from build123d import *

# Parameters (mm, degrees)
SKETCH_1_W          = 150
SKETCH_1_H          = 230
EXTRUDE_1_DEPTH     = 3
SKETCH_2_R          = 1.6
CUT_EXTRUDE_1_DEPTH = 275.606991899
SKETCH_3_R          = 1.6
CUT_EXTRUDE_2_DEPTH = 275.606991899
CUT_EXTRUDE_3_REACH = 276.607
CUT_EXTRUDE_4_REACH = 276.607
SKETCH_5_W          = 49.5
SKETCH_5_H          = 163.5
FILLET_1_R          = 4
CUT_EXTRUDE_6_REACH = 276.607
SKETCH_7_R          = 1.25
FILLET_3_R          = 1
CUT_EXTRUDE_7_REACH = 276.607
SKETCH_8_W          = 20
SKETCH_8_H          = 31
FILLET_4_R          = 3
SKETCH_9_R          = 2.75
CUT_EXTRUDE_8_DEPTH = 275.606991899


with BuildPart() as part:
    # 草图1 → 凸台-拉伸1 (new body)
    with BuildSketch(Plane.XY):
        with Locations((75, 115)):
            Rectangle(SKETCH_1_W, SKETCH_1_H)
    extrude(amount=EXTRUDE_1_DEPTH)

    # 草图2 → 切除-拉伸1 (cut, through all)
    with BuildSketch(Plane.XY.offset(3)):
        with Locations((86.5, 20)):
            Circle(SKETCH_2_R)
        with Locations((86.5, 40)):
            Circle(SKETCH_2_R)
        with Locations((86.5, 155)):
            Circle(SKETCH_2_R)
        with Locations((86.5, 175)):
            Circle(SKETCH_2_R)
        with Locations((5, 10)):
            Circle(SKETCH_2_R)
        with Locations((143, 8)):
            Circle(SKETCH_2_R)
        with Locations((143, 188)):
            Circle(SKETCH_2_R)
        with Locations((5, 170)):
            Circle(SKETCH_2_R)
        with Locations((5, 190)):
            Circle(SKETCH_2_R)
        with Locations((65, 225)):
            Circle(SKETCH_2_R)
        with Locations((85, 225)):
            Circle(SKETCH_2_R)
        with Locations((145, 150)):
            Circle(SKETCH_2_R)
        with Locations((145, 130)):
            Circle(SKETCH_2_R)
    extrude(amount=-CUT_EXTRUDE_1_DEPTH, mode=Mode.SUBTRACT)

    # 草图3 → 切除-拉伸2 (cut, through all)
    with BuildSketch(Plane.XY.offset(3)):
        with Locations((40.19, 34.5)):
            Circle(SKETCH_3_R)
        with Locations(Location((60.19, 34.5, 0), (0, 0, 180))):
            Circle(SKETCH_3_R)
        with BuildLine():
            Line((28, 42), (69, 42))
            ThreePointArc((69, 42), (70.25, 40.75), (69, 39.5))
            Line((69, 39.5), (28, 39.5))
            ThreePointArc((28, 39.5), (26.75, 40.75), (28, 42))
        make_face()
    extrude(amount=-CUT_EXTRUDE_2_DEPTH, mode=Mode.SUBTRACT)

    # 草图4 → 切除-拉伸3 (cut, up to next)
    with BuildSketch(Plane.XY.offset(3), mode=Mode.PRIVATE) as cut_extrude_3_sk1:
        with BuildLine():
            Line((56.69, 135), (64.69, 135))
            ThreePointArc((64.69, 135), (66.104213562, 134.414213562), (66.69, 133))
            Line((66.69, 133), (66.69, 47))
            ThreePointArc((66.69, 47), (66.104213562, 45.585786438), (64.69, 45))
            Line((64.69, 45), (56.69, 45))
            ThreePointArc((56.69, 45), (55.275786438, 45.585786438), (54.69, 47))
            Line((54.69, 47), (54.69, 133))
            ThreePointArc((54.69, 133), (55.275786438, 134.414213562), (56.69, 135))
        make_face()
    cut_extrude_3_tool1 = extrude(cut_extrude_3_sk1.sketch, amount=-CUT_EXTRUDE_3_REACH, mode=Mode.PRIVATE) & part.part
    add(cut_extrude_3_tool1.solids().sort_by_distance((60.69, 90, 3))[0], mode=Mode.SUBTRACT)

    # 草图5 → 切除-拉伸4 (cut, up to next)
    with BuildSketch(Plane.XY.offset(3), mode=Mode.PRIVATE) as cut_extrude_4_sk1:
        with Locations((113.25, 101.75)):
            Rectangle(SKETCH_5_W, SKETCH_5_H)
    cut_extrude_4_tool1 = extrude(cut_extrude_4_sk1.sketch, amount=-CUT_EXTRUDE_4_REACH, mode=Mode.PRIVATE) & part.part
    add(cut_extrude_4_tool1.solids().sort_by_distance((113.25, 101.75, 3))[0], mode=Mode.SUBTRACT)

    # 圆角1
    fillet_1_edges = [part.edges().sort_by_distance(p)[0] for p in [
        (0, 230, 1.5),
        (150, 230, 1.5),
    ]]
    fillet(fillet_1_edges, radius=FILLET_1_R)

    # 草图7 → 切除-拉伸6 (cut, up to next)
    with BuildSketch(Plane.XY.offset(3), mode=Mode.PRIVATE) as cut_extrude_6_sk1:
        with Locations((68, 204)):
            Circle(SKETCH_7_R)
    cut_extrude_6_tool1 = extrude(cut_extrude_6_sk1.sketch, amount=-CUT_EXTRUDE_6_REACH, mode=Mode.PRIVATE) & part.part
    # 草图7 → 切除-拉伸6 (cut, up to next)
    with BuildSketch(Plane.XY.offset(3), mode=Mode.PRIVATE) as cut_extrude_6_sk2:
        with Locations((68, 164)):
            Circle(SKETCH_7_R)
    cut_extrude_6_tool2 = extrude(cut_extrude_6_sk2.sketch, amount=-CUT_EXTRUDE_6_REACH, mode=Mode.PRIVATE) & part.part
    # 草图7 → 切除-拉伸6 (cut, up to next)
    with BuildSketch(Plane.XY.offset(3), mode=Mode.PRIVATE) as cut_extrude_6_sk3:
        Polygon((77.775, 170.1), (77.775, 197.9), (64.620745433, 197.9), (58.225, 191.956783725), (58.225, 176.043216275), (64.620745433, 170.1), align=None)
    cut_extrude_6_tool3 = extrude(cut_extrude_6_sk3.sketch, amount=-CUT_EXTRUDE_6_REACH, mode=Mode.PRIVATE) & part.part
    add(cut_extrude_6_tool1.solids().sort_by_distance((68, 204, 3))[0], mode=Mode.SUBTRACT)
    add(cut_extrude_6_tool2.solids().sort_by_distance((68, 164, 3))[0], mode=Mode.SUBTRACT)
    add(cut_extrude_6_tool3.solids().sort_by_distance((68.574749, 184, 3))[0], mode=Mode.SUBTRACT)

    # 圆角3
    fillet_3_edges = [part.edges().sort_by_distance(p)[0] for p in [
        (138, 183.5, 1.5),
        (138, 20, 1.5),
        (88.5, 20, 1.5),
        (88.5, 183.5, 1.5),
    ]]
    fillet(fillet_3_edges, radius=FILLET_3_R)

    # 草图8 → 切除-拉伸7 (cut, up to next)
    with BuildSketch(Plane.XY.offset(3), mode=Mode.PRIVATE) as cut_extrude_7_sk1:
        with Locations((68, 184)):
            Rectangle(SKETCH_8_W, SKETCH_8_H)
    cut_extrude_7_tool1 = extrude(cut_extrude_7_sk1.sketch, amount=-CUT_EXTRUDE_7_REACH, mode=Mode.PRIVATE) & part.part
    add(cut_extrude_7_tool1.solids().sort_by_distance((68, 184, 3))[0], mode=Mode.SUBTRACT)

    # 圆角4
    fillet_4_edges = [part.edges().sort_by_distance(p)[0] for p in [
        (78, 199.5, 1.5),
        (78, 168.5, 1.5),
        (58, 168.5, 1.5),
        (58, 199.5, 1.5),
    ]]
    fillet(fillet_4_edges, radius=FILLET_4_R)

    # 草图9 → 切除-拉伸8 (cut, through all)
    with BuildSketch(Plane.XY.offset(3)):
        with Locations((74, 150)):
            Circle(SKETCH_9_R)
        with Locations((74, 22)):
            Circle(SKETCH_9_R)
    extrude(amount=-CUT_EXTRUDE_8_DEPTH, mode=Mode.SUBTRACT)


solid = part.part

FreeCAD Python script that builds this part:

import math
import FreeCAD as App
import Part
import Sketcher
from FreeCAD import Vector


def edges_at(feature, points):
    """Names of the edges that pass closest to the given points."""
    edges = feature.Shape.Edges
    near = lambda p: min(range(len(edges)), key=lambda i: edges[i].distToShape(Part.Vertex(*p))[0])
    return sorted({f"Edge{near(p) + 1}" for p in points})


def add_polygon(sketch, points):
    """Adds a closed chain of lines whose ends are joined by coincident constraints."""
    first, n = sketch.GeometryCount, len(points)
    for a, b in zip(points, points[1:] + points[:1]):
        sketch.addGeometry(Part.LineSegment(App.Vector(*a, 0), App.Vector(*b, 0)), False)
    for i in range(n):
        sketch.addConstraint(Sketcher.Constraint("Coincident", first + i, 2, first + (i + 1) % n, 1))

doc = App.newDocument("Part")
body = doc.addObject("PartDesign::Body", "Body")

sketch1 = doc.addObject("Sketcher::SketchObject", "Sketch")
body.addObject(sketch1)
sketch1.AttachmentSupport = (doc.XY_Plane, [""])
sketch1.MapMode = "FlatFace"
add_polygon(sketch1, [(0, 230), (0, 0), (150, 0), (150, 230)])
sketch1.addConstraint(Sketcher.Constraint("Vertical", 0))
sketch1.addConstraint(Sketcher.Constraint("Horizontal", 1))
sketch1.addConstraint(Sketcher.Constraint("Vertical", 2))
sketch1.addConstraint(Sketcher.Constraint("Horizontal", 3))
sketch1.addConstraint(Sketcher.Constraint("Coincident", 0, 2, -1, 1))
sketch1.addConstraint(Sketcher.Constraint("DistanceX", 1, 1, 1, 2, 150.0))
sketch1.addConstraint(Sketcher.Constraint("DistanceY", 0, 2, 0, 1, 230.0))
pad1 = doc.addObject("PartDesign::Pad", "Pad")
body.addObject(pad1)
pad1.Profile = sketch1
pad1.Length = 3

sketch2 = doc.addObject("Sketcher::SketchObject", "Sketch001")
body.addObject(sketch2)
sketch2.AttachmentSupport = (doc.XY_Plane, [""])
sketch2.MapMode = "FlatFace"
sketch2.AttachmentOffset = App.Placement(Vector(0, 0, 3), App.Rotation())
sketch2.addGeometry(Part.Circle(Vector(86.5, 20, 0), Vector(0, 0, 1), 1.6), False)
sketch2.addGeometry(Part.Circle(Vector(86.5, 40, 0), Vector(0, 0, 1), 1.6), False)
sketch2.addGeometry(Part.Circle(Vector(86.5, 155, 0), Vector(0, 0, 1), 1.6), False)
sketch2.addGeometry(Part.Circle(Vector(86.5, 175, 0), Vector(0, 0, 1), 1.6), False)
sketch2.addGeometry(Part.Circle(Vector(5, 10, 0), Vector(0, 0, 1), 1.6), False)
sketch2.addGeometry(Part.Circle(Vector(143, 8, 0), Vector(0, 0, 1), 1.6), False)
sketch2.addGeometry(Part.Circle(Vector(143, 188, 0), Vector(0, 0, 1), 1.6), False)
sketch2.addGeometry(Part.Circle(Vector(5, 170, 0), Vector(0, 0, 1), 1.6), False)
sketch2.addGeometry(Part.Circle(Vector(5, 190, 0), Vector(0, 0, 1), 1.6), False)
sketch2.addGeometry(Part.Circle(Vector(65, 225, 0), Vector(0, 0, 1), 1.6), False)
sketch2.addGeometry(Part.Circle(Vector(85, 225, 0), Vector(0, 0, 1), 1.6), False)
sketch2.addGeometry(Part.Circle(Vector(145, 150, 0), Vector(0, 0, 1), 1.6), False)
sketch2.addGeometry(Part.Circle(Vector(145, 130, 0), Vector(0, 0, 1), 1.6), False)
sketch2.addConstraint(Sketcher.Constraint("Equal", 0, 1))
sketch2.addConstraint(Sketcher.Constraint("Equal", 1, 2))
sketch2.addConstraint(Sketcher.Constraint("Equal", 2, 3))
sketch2.addConstraint(Sketcher.Constraint("Equal", 3, 4))
sketch2.addConstraint(Sketcher.Constraint("Equal", 4, 5))
sketch2.addConstraint(Sketcher.Constraint("Equal", 5, 6))
sketch2.addConstraint(Sketcher.Constraint("Equal", 6, 7))
sketch2.addConstraint(Sketcher.Constraint("Equal", 7, 8))
sketch2.addConstraint(Sketcher.Constraint("Equal", 8, 9))
sketch2.addConstraint(Sketcher.Constraint("Equal", 9, 10))
sketch2.addConstraint(Sketcher.Constraint("Equal", 10, 11))
sketch2.addConstraint(Sketcher.Constraint("Equal", 11, 12))
sketch2.addConstraint(Sketcher.Constraint("Horizontal", 9, 3, 10, 3))
sketch2.addConstraint(Sketcher.Constraint("Vertical", 0, 3, 1, 3))
sketch2.addConstraint(Sketcher.Constraint("Vertical", 1, 3, 2, 3))
sketch2.addConstraint(Sketcher.Constraint("Vertical", 2, 3, 3, 3))
sketch2.addConstraint(Sketcher.Constraint("Vertical", 5, 3, 6, 3))
sketch2.addConstraint(Sketcher.Constraint("Vertical", 4, 3, 7, 3))
sketch2.addConstraint(Sketcher.Constraint("Vertical", 7, 3, 8, 3))
sketch2.addConstraint(Sketcher.Constraint("Vertical", 11, 3, 12, 3))
sketch2.addConstraint(Sketcher.Constraint("Diameter", 0, 3.2))
sketch2.addConstraint(Sketcher.Constraint("DistanceY", -1, 1, 0, 3, 20.0))
sketch2.addConstraint(Sketcher.Constraint("DistanceY", -1, 1, 1, 3, 40.0))
sketch2.addConstraint(Sketcher.Constraint("DistanceY", -1, 1, 2, 3, 155.0))
sketch2.addConstraint(Sketcher.Constraint("DistanceY", -1, 1, 3, 3, 175.0))
sketch2.addConstraint(Sketcher.Constraint("DistanceX", -1, 1, 4, 3, 5.0))
sketch2.addConstraint(Sketcher.Constraint("DistanceY", -1, 1, 4, 3, 10.0))
sketch2.addConstraint(Sketcher.Constraint("DistanceX", -1, 1, 5, 3, 143.0))
sketch2.addConstraint(Sketcher.Constraint("DistanceY", -1, 1, 5, 3, 8.0))
sketch2.addConstraint(Sketcher.Constraint("DistanceY", -1, 1, 6, 3, 188.0))
sketch2.addConstraint(Sketcher.Constraint("DistanceY", -1, 1, 7, 3, 170.0))
sketch2.addConstraint(Sketcher.Constraint("DistanceY", -1, 1, 8, 3, 190.0))
sketch2.addConstraint(Sketcher.Constraint("DistanceX", -1, 1, 9, 3, 65.0))
sketch2.addConstraint(Sketcher.Constraint("DistanceY", -1, 1, 9, 3, 225.0))
sketch2.addConstraint(Sketcher.Constraint("DistanceX", -1, 1, 10, 3, 85.0))
sketch2.addConstraint(Sketcher.Constraint("DistanceX", -1, 1, 11, 3, 145.0))
sketch2.addConstraint(Sketcher.Constraint("DistanceY", -1, 1, 11, 3, 150.0))
sketch2.addConstraint(Sketcher.Constraint("DistanceY", -1, 1, 12, 3, 130.0))
sketch2.addConstraint(Sketcher.Constraint("DistanceX", -1, 1, 0, 3, 86.5))
pocket1 = doc.addObject("PartDesign::Pocket", "Pocket")
body.addObject(pocket1)
pocket1.Profile = sketch2
pocket1.Type = "ThroughAll"

sketch3 = doc.addObject("Sketcher::SketchObject", "Sketch002")
body.addObject(sketch3)
sketch3.AttachmentSupport = (doc.XY_Plane, [""])
sketch3.MapMode = "FlatFace"
sketch3.AttachmentOffset = App.Placement(Vector(0, 0, 3), App.Rotation())
sketch3.addGeometry(Part.Circle(Vector(40.19, 34.5, 0), Vector(0, 0, 1), 1.6), False)
sketch3.addGeometry(Part.Circle(Vector(60.19, 34.5, 0), Vector(0, 0, 1), 1.6), False)
sketch3.addGeometry(Part.LineSegment(Vector(69, 42, 0), Vector(28, 42, 0)), False)
sketch3.addGeometry(Part.ArcOfCircle(Part.Circle(Vector(28, 40.75, 0), Vector(0, 0, 1), 1.25), math.radians(90), math.radians(270)), False)
sketch3.addGeometry(Part.LineSegment(Vector(28, 39.5, 0), Vector(69, 39.5, 0)), False)
sketch3.addGeometry(Part.ArcOfCircle(Part.Circle(Vector(69, 40.75, 0), Vector(0, 0, 1), 1.25), math.radians(-90), math.radians(90)), False)
sketch3.addConstraint(Sketcher.Constraint("Tangent", 2, 2, 3, 1))
sketch3.addConstraint(Sketcher.Constraint("Tangent", 3, 2, 4, 1))
sketch3.addConstraint(Sketcher.Constraint("Tangent", 4, 2, 5, 1))
sketch3.addConstraint(Sketcher.Constraint("Tangent", 5, 2, 2, 1))
sketch3.addConstraint(Sketcher.Constraint("Horizontal", 2))
sketch3.addConstraint(Sketcher.Constraint("Horizontal", 4))
sketch3.addConstraint(Sketcher.Constraint("Equal", 0, 1))
sketch3.addConstraint(Sketcher.Constraint("Horizontal", 0, 3, 1, 3))
sketch3.addConstraint(Sketcher.Constraint("Diameter", 0, 3.2))
sketch3.addConstraint(Sketcher.Constraint("DistanceX", 2, 2, 2, 1, 41.0))
sketch3.addConstraint(Sketcher.Constraint("Radius", 3, 1.25))
sketch3.addConstraint(Sketcher.Constraint("DistanceX", -1, 1, 3, 3, 28.0))
sketch3.addConstraint(Sketcher.Constraint("DistanceY", -1, 1, 2, 2, 42.0))
sketch3.addConstraint(Sketcher.Constraint("DistanceX", 0, 3, 1, 3, 20.0))
sketch3.addConstraint(Sketcher.Constraint("DistanceY", 0, 3, 3, 2, 5.0))
sketch3.addConstraint(Sketcher.Constraint("DistanceX", -1, 1, 0, 3, 40.19))
pocket2 = doc.addObject("PartDesign::Pocket", "Pocket001")
body.addObject(pocket2)
pocket2.Profile = sketch3
pocket2.Type = "ThroughAll"

sketch4 = doc.addObject("Sketcher::SketchObject", "Sketch003")
body.addObject(sketch4)
sketch4.AttachmentSupport = (doc.XY_Plane, [""])
sketch4.MapMode = "FlatFace"
sketch4.AttachmentOffset = App.Placement(Vector(0, 0, 3), App.Rotation())
sketch4.addGeometry(Part.LineSegment(Vector(64.69, 135, 0), Vector(56.69, 135, 0)), False)
sketch4.addGeometry(Part.ArcOfCircle(Part.Circle(Vector(56.69, 133, 0), Vector(0, 0, 1), 2), math.radians(90), math.radians(180)), False)
sketch4.addGeometry(Part.LineSegment(Vector(54.69, 133, 0), Vector(54.69, 47, 0)), False)
sketch4.addGeometry(Part.ArcOfCircle(Part.Circle(Vector(56.69, 47, 0), Vector(0, 0, 1), 2), math.radians(-180), math.radians(-90)), False)
sketch4.addGeometry(Part.LineSegment(Vector(56.69, 45, 0), Vector(64.69, 45, 0)), False)
sketch4.addGeometry(Part.ArcOfCircle(Part.Circle(Vector(64.69, 47, 0), Vector(0, 0, 1), 2), math.radians(-90), math.radians(0)), False)
sketch4.addGeometry(Part.LineSegment(Vector(66.69, 47, 0), Vector(66.69, 133, 0)), False)
sketch4.addGeometry(Part.ArcOfCircle(Part.Circle(Vector(64.69, 133, 0), Vector(0, 0, 1), 2), math.radians(0), math.radians(90)), False)
sketch4.addConstraint(Sketcher.Constraint("Tangent", 0, 2, 1, 1))
sketch4.addConstraint(Sketcher.Constraint("Tangent", 1, 2, 2, 1))
sketch4.addConstraint(Sketcher.Constraint("Tangent", 2, 2, 3, 1))
sketch4.addConstraint(Sketcher.Constraint("Tangent", 3, 2, 4, 1))
sketch4.addConstraint(Sketcher.Constraint("Tangent", 4, 2, 5, 1))
sketch4.addConstraint(Sketcher.Constraint("Tangent", 5, 2, 6, 1))
sketch4.addConstraint(Sketcher.Constraint("Tangent", 6, 2, 7, 1))
sketch4.addConstraint(Sketcher.Constraint("Tangent", 7, 2, 0, 1))
sketch4.addConstraint(Sketcher.Constraint("Horizontal", 0))
sketch4.addConstraint(Sketcher.Constraint("Vertical", 2))
sketch4.addConstraint(Sketcher.Constraint("Horizontal", 4))
sketch4.addConstraint(Sketcher.Constraint("Vertical", 6))
sketch4.addConstraint(Sketcher.Constraint("Equal", 1, 3))
sketch4.addConstraint(Sketcher.Constraint("Equal", 3, 5))
sketch4.addConstraint(Sketcher.Constraint("Equal", 5, 7))
sketch4.addConstraint(Sketcher.Constraint("Radius", 1, 2.0))
sketch4.addConstraint(Sketcher.Constraint("DistanceX", 0, 2, 0, 1, 8.0))
sketch4.addConstraint(Sketcher.Constraint("DistanceY", 2, 2, 2, 1, 86.0))
sketch4.addConstraint(Sketcher.Constraint("DistanceY", -1, 1, 1, 3, 133.0))
sketch4.addConstraint(Sketcher.Constraint("DistanceX", -1, 1, 1, 3, 56.69))
pocket3 = doc.addObject("PartDesign::Pocket", "Pocket002")
body.addObject(pocket3)
pocket3.Profile = sketch4
pocket3.Type = "UpToFirst"

sketch5 = doc.addObject("Sketcher::SketchObject", "Sketch004")
body.addObject(sketch5)
sketch5.AttachmentSupport = (doc.XY_Plane, [""])
sketch5.MapMode = "FlatFace"
sketch5.AttachmentOffset = App.Placement(Vector(0, 0, 3), App.Rotation())
add_polygon(sketch5, [(88.5, 183.5), (88.5, 20), (138, 20), (138, 183.5)])
sketch5.addConstraint(Sketcher.Constraint("Vertical", 0))
sketch5.addConstraint(Sketcher.Constraint("Horizontal", 1))
sketch5.addConstraint(Sketcher.Constraint("Vertical", 2))
sketch5.addConstraint(Sketcher.Constraint("Horizontal", 3))
sketch5.addConstraint(Sketcher.Constraint("DistanceX", 1, 1, 1, 2, 49.5))
sketch5.addConstraint(Sketcher.Constraint("DistanceY", 0, 2, 0, 1, 163.5))
sketch5.addConstraint(Sketcher.Constraint("DistanceY", -1, 1, 0, 2, 20.0))
sketch5.addConstraint(Sketcher.Constraint("DistanceX", -1, 1, 1, 2, 138.0))
pocket4 = doc.addObject("PartDesign::Pocket", "Pocket003")
body.addObject(pocket4)
pocket4.Profile = sketch5
pocket4.Type = "UpToFirst"
doc.recompute()

fillet = doc.addObject("PartDesign::Fillet", "Fillet")
body.addObject(fillet)
fillet.Base = (pocket4, edges_at(pocket4, [(0, 230, 1.5), (150, 230, 1.5)]))
fillet.Radius = 4

sketch6 = doc.addObject("Sketcher::SketchObject", "Sketch005")
body.addObject(sketch6)
sketch6.AttachmentSupport = (doc.XY_Plane, [""])
sketch6.MapMode = "FlatFace"
sketch6.AttachmentOffset = App.Placement(Vector(0, 0, 3), App.Rotation())
sketch6.addGeometry(Part.Circle(Vector(68, 204, 0), Vector(0, 0, 1), 1.25), False)
sketch6.addConstraint(Sketcher.Constraint("Diameter", 0, 2.5))
sketch6.addConstraint(Sketcher.Constraint("DistanceX", -1, 1, 0, 3, 68.0))
sketch6.addConstraint(Sketcher.Constraint("DistanceY", -1, 1, 0, 3, 204.0))
pocket5 = doc.addObject("PartDesign::Pocket", "Pocket004")
body.addObject(pocket5)
pocket5.Profile = sketch6
pocket5.Type = "UpToFirst"

sketch7 = doc.addObject("Sketcher::SketchObject", "Sketch006")
body.addObject(sketch7)
sketch7.AttachmentSupport = (doc.XY_Plane, [""])
sketch7.MapMode = "FlatFace"
sketch7.AttachmentOffset = App.Placement(Vector(0, 0, 3), App.Rotation())
sketch7.addGeometry(Part.Circle(Vector(68, 164, 0), Vector(0, 0, 1), 1.25), False)
sketch7.addConstraint(Sketcher.Constraint("Diameter", 0, 2.5))
sketch7.addConstraint(Sketcher.Constraint("DistanceX", -1, 1, 0, 3, 68.0))
sketch7.addConstraint(Sketcher.Constraint("DistanceY", -1, 1, 0, 3, 164.0))
pocket6 = doc.addObject("PartDesign::Pocket", "Pocket005")
body.addObject(pocket6)
pocket6.Profile = sketch7
pocket6.Type = "UpToFirst"

sketch8 = doc.addObject("Sketcher::SketchObject", "Sketch007")
body.addObject(sketch8)
sketch8.AttachmentSupport = (doc.XY_Plane, [""])
sketch8.MapMode = "FlatFace"
sketch8.AttachmentOffset = App.Placement(Vector(0, 0, 3), App.Rotation())
add_polygon(sketch8, [(77.775, 170.1), (77.775, 197.9), (64.620745, 197.9), (58.225, 191.956784), (58.225, 176.043216), (64.620745, 170.1)])
sketch8.addConstraint(Sketcher.Constraint("Vertical", 0))
sketch8.addConstraint(Sketcher.Constraint("Horizontal", 1))
sketch8.addConstraint(Sketcher.Constraint("Vertical", 3))
sketch8.addConstraint(Sketcher.Constraint("Horizontal", 5))
sketch8.addConstraint(Sketcher.Constraint("Vertical", 1, 2, 4, 2))
sketch8.addConstraint(Sketcher.Constraint("Equal", 2, 4))
sketch8.addConstraint(Sketcher.Constraint("DistanceY", 0, 1, 0, 2, 27.8))
sketch8.addConstraint(Sketcher.Constraint("DistanceY", -1, 1, 0, 2, 197.9))
sketch8.addConstraint(Sketcher.Constraint("DistanceX", 2, 2, 0, 2, 19.55))
sketch8.addConstraint(Sketcher.Constraint("DistanceX", -1, 1, 0, 2, 77.775))
sketch8.addConstraint(Sketcher.Constraint("Distance", 2, 8.730829))
sketch8.addConstraint(Sketcher.Constraint("DistanceX", 1, 2, 1, 1, 13.154255))
pocket7 = doc.addObject("PartDesign::Pocket", "Pocket006")
body.addObject(pocket7)
pocket7.Profile = sketch8
pocket7.Type = "UpToFirst"
doc.recompute()

fillet2 = doc.addObject("PartDesign::Fillet", "Fillet001")
body.addObject(fillet2)
fillet2.Base = (pocket7, edges_at(pocket7, [
    (138, 183.5, 1.5),
    (138, 20, 1.5),
    (88.5, 20, 1.5),
    (88.5, 183.5, 1.5),
]))
fillet2.Radius = 1

sketch9 = doc.addObject("Sketcher::SketchObject", "Sketch008")
body.addObject(sketch9)
sketch9.AttachmentSupport = (doc.XY_Plane, [""])
sketch9.MapMode = "FlatFace"
sketch9.AttachmentOffset = App.Placement(Vector(0, 0, 3), App.Rotation())
add_polygon(sketch9, [(58, 199.5), (58, 168.5), (78, 168.5), (78, 199.5)])
sketch9.addConstraint(Sketcher.Constraint("Vertical", 0))
sketch9.addConstraint(Sketcher.Constraint("Horizontal", 1))
sketch9.addConstraint(Sketcher.Constraint("Vertical", 2))
sketch9.addConstraint(Sketcher.Constraint("Horizontal", 3))
sketch9.addConstraint(Sketcher.Constraint("DistanceX", 1, 1, 1, 2, 20.0))
sketch9.addConstraint(Sketcher.Constraint("DistanceY", 0, 2, 0, 1, 31.0))
sketch9.addConstraint(Sketcher.Constraint("DistanceX", -1, 1, 0, 2, 58.0))
sketch9.addConstraint(Sketcher.Constraint("DistanceY", -1, 1, 0, 2, 168.5))
pocket8 = doc.addObject("PartDesign::Pocket", "Pocket007")
body.addObject(pocket8)
pocket8.Profile = sketch9
pocket8.Length = 3
doc.recompute()

fillet3 = doc.addObject("PartDesign::Fillet", "Fillet002")
body.addObject(fillet3)
fillet3.Base = (pocket8, edges_at(pocket8, [
    (78, 199.5, 1.5),
    (78, 168.5, 1.5),
    (58, 168.5, 1.5),
    (58, 199.5, 1.5),
]))
fillet3.Radius = 3

sketch10 = doc.addObject("Sketcher::SketchObject", "Sketch009")
body.addObject(sketch10)
sketch10.AttachmentSupport = (doc.XY_Plane, [""])
sketch10.MapMode = "FlatFace"
sketch10.AttachmentOffset = App.Placement(Vector(0, 0, 3), App.Rotation())
sketch10.addGeometry(Part.Circle(Vector(74, 150, 0), Vector(0, 0, 1), 2.75), False)
sketch10.addGeometry(Part.Circle(Vector(74, 22, 0), Vector(0, 0, 1), 2.75), False)
sketch10.addConstraint(Sketcher.Constraint("Equal", 0, 1))
sketch10.addConstraint(Sketcher.Constraint("Vertical", 0, 3, 1, 3))
sketch10.addConstraint(Sketcher.Constraint("Diameter", 0, 5.5))
sketch10.addConstraint(Sketcher.Constraint("DistanceX", -1, 1, 0, 3, 74.0))
sketch10.addConstraint(Sketcher.Constraint("DistanceY", -1, 1, 0, 3, 150.0))
sketch10.addConstraint(Sketcher.Constraint("DistanceY", -1, 1, 1, 3, 22.0))
pocket9 = doc.addObject("PartDesign::Pocket", "Pocket008")
body.addObject(pocket9)
pocket9.Profile = sketch10
pocket9.Type = "ThroughAll"

doc.recompute()
